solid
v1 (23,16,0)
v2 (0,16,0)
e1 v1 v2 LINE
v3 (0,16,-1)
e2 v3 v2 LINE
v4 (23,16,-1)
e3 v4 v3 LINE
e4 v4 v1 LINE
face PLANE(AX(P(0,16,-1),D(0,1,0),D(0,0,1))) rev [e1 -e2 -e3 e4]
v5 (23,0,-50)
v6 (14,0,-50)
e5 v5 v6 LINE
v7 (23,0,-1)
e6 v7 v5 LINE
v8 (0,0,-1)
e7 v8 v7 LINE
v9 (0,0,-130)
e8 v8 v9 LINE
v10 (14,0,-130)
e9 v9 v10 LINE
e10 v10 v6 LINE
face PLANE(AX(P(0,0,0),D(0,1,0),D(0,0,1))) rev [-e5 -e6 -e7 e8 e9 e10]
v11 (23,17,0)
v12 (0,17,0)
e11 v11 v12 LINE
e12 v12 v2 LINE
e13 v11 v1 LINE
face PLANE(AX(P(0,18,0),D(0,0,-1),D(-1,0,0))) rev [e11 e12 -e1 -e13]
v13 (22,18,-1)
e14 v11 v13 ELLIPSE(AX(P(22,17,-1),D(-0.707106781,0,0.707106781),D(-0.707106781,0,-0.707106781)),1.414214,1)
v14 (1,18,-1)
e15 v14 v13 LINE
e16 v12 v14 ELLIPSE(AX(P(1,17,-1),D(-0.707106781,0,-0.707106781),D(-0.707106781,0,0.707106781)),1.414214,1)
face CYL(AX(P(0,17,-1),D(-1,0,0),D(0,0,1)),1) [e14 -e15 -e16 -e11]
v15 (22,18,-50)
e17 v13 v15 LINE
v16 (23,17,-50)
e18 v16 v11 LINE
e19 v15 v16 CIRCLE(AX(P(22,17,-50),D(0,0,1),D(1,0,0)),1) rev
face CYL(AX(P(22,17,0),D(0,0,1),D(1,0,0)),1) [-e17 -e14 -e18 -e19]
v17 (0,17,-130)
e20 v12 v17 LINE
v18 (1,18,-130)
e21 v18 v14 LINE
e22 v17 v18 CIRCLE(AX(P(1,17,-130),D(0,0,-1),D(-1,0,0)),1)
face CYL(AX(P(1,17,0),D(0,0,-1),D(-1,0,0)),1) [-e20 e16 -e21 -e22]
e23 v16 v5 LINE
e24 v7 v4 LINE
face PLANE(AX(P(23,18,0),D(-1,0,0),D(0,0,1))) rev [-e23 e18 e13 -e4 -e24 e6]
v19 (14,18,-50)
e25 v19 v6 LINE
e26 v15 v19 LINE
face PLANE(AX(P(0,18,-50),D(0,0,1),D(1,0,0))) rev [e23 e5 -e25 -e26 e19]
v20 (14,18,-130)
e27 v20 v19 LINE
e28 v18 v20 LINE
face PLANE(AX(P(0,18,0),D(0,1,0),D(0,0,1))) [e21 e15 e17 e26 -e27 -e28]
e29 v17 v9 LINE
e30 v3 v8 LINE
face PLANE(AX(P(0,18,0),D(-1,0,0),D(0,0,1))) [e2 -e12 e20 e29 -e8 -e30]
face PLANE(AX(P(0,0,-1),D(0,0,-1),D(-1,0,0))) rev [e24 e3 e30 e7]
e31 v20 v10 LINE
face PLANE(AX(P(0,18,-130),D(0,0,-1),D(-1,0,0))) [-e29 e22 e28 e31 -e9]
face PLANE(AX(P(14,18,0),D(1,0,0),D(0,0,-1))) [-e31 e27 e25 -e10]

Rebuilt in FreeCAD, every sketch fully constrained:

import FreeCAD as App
import Part
import Sketcher


def edges_at(feature, points):
    """Names of the edges that pass closest to the given points."""
    edges = feature.Shape.Edges
    near = lambda p: min(range(len(edges)), key=lambda i: edges[i].distToShape(Part.Vertex(*p))[0])
    return sorted({f"Edge{near(p) + 1}" for p in points})

doc = App.newDocument("Part")
body = doc.addObject("PartDesign::Body", "Body")

sketch1 = body.newObject("Sketcher::SketchObject", "Sketch")
sketch1.AttachmentSupport = (doc.getObject("XZ_Plane"), [""])
sketch1.MapMode = "FlatFace"
sketch1.addGeometry([
    Part.LineSegment(App.Vector(0, -130, 0), App.Vector(0, 0, 0)),
    Part.LineSegment(App.Vector(0, 0, 0), App.Vector(23, 0, 0)),
    Part.LineSegment(App.Vector(23, 0, 0), App.Vector(23, -50, 0)),
    Part.LineSegment(App.Vector(23, -50, 0), App.Vector(14, -50, 0)),
    Part.LineSegment(App.Vector(14, -50, 0), App.Vector(14, -130, 0)),
    Part.LineSegment(App.Vector(14, -130, 0), App.Vector(0, -130, 0)),
], False)
sketch1.addConstraint([
    Sketcher.Constraint("Coincident", 0, 2, 1, 1),
    Sketcher.Constraint("Coincident", 1, 2, 2, 1),
    Sketcher.Constraint("Coincident", 2, 2, 3, 1),
    Sketcher.Constraint("Coincident", 3, 2, 4, 1),
    Sketcher.Constraint("Coincident", 4, 2, 5, 1),
    Sketcher.Constraint("Coincident", 5, 2, 0, 1),
    Sketcher.Constraint("Vertical", 0),
    Sketcher.Constraint("Horizontal", 1),
    Sketcher.Constraint("Vertical", 2),
    Sketcher.Constraint("Horizontal", 3),
    Sketcher.Constraint("Vertical", 4),
    Sketcher.Constraint("Horizontal", 5),
    Sketcher.Constraint("Coincident", 0, 2, -1, 1),
    Sketcher.Constraint("DistanceX", 1, 1, 1, 2, 23.0),
    Sketcher.Constraint("DistanceX", 3, 2, 3, 1, 9.0),
    Sketcher.Constraint("DistanceY", 0, 1, 0, 2, 130.0),
    Sketcher.Constraint("DistanceY", 2, 2, 2, 1, 50.0),
])
pad1 = body.newObject("PartDesign::Pad", "Pad")
pad1.Profile = sketch1
pad1.Length = 18
pad1.Reversed = True

sketch2 = body.newObject("Sketcher::SketchObject", "Sketch001")
sketch2.AttachmentSupport = (doc.getObject("XY_Plane"), [""])
sketch2.MapMode = "FlatFace"
sketch2.addGeometry([
    Part.LineSegment(App.Vector(0, 16, 0), App.Vector(0, 0, 0)),
    Part.LineSegment(App.Vector(0, 0, 0), App.Vector(23, 0, 0)),
    Part.LineSegment(App.Vector(23, 0, 0), App.Vector(23, 16, 0)),
    Part.LineSegment(App.Vector(23, 16, 0), App.Vector(0, 16, 0)),
], False)
sketch2.addConstraint([
    Sketcher.Constraint("Coincident", 0, 2, 1, 1),
    Sketcher.Constraint("Coincident", 1, 2, 2, 1),
    Sketcher.Constraint("Coincident", 2, 2, 3, 1),
    Sketcher.Constraint("Coincident", 3, 2, 0, 1),
    Sketcher.Constraint("Vertical", 0),
    Sketcher.Constraint("Horizontal", 1),
    Sketcher.Constraint("Vertical", 2),
    Sketcher.Constraint("Horizontal", 3),
    Sketcher.Constraint("Coincident", 0, 2, -1, 1),
    Sketcher.Constraint("DistanceX", 1, 1, 1, 2, 23.0),
    Sketcher.Constraint("DistanceY", 0, 2, 0, 1, 16.0),
])
pocket1 = body.newObject("PartDesign::Pocket", "Pocket")
pocket1.Profile = sketch2
pocket1.Length = 1
doc.recompute()

fillet = body.newObject("PartDesign::Fillet", "Fillet")
fillet.Base = (pocket1, edges_at(pocket1, [(0, 18, -65), (11.5, 18, 0), (23, 18, -25)]))
fillet.Radius = 1

doc.recompute()
